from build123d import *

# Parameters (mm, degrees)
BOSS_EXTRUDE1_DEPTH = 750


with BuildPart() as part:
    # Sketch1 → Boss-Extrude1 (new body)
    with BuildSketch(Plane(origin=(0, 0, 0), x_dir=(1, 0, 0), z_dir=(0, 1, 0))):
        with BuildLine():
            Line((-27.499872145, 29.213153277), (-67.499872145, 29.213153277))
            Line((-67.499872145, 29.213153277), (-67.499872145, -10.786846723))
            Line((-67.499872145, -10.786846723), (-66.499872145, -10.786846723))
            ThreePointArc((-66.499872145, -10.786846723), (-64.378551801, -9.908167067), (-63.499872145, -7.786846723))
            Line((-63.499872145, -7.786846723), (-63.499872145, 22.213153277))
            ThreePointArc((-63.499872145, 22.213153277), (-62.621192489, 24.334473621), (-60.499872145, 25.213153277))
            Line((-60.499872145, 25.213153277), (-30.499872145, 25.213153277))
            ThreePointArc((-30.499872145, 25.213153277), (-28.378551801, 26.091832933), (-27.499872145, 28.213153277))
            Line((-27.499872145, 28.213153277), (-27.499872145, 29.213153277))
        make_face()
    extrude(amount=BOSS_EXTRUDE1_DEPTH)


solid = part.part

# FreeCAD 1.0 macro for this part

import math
import FreeCAD as App
import Part
import Sketcher
Q = App.Units.Quantity

doc = App.newDocument("Part")
params = doc.addObject("Spreadsheet::Sheet", "Params")
for row, (alias, value) in enumerate([
    ("sketch1_radius", "3 mm"),
    ("sketch1_width", "40 mm"),
    ("sketch1_width2", "1 mm"),
    ("pad1_length", "750 mm"),
], start=1):
    params.set(f"A{row}", alias)
    params.set(f"B{row}", "=" + value)
    params.setAlias(f"B{row}", alias)

body = doc.addObject("PartDesign::Body", "Body")

sketch1 = body.newObject("Sketcher::SketchObject", "Sketch")
sketch1.AttachmentSupport = (doc.getObject("XZ_Plane"), [""])
sketch1.MapMode = "FlatFace"
sketch1.addGeometry(Part.LineSegment(App.Vector(-27.5, -29.2, 0), App.Vector(-67.5, -29.2, 0)), False)
sketch1.addGeometry(Part.LineSegment(App.Vector(-67.5, -29.2, 0), App.Vector(-67.5, 10.8, 0)), False)
sketch1.addGeometry(Part.LineSegment(App.Vector(-67.5, 10.8, 0), App.Vector(-66.5, 10.8, 0)), False)
sketch1.addGeometry(Part.ArcOfCircle(Part.Circle(App.Vector(-66.5, 7.8, 0), App.Vector(0, 0, 1), 3), math.radians(0), math.radians(90)), False)
sketch1.addGeometry(Part.LineSegment(App.Vector(-63.5, 7.8, 0), App.Vector(-63.5, -22.2, 0)), False)
sketch1.addGeometry(Part.ArcOfCircle(Part.Circle(App.Vector(-60.5, -22.2, 0), App.Vector(0, 0, 1), 3), math.radians(180), math.radians(270)), False)
sketch1.addGeometry(Part.LineSegment(App.Vector(-60.5, -25.2, 0), App.Vector(-30.5, -25.2, 0)), False)
sketch1.addGeometry(Part.ArcOfCircle(Part.Circle(App.Vector(-30.5, -28.2, 0), App.Vector(0, 0, 1), 3), math.radians(0), math.radians(90)), False)
sketch1.addGeometry(Part.LineSegment(App.Vector(-27.5, -28.2, 0), App.Vector(-27.5, -29.2, 0)), False)
sketch1.addConstraint(Sketcher.Constraint("Coincident", 0, 2, 1, 1))
sketch1.addConstraint(Sketcher.Constraint("Coincident", 1, 2, 2, 1))
sketch1.addConstraint(Sketcher.Constraint("Tangent", 2, 2, 3, 2))
sketch1.addConstraint(Sketcher.Constraint("Tangent", 3, 1, 4, 1))
sketch1.addConstraint(Sketcher.Constraint("Tangent", 4, 2, 5, 1))
sketch1.addConstraint(Sketcher.Constraint("Tangent", 5, 2, 6, 1))
sketch1.addConstraint(Sketcher.Constraint("Tangent", 6, 2, 7, 2))
sketch1.addConstraint(Sketcher.Constraint("Tangent", 7, 1, 8, 1))
sketch1.addConstraint(Sketcher.Constraint("Coincident", 8, 2, 0, 1))
sketch1.addConstraint(Sketcher.Constraint("Horizontal", 0))
sketch1.addConstraint(Sketcher.Constraint("Vertical", 1))
sketch1.addConstraint(Sketcher.Constraint("Horizontal", 2))
sketch1.addConstraint(Sketcher.Constraint("Vertical", 4))
sketch1.addConstraint(Sketcher.Constraint("Horizontal", 6))
sketch1.addConstraint(Sketcher.Constraint("Vertical", 8))
sketch1.addConstraint(Sketcher.Constraint("Equal", 3, 5))
sketch1.addConstraint(Sketcher.Constraint("Equal", 5, 7))
sketch1.addConstraint(Sketcher.Constraint("Equal", 0, 1))
sketch1.addConstraint(Sketcher.Constraint("Equal", 6, 4))
sketch1.addConstraint(Sketcher.Constraint("Radius", 3, Q("3 mm")))
sketch1.addConstraint(Sketcher.Constraint("DistanceX", 0, 2, 0, 1, Q("40 mm")))
sketch1.addConstraint(Sketcher.Constraint("DistanceX", 2, 1, 2, 2, Q("1 mm")))
sketch1.addConstraint(Sketcher.Constraint("DistanceX", 3, 3, -1, 1, Q("66.499872 mm")))
sketch1.addConstraint(Sketcher.Constraint("DistanceY", -1, 1, 3, 3, Q("7.786847 mm")))
sketch1.setExpression("Constraints[19]", "Params.sketch1_radius")
sketch1.setExpression("Constraints[20]", "Params.sketch1_width")
sketch1.setExpression("Constraints[21]", "Params.sketch1_width2")
pad1 = body.newObject("PartDesign::Pad", "Pad")
pad1.Profile = sketch1
pad1.setExpression("Length", "Params.pad1_length")
pad1.Reversed = True

doc.recompute()
